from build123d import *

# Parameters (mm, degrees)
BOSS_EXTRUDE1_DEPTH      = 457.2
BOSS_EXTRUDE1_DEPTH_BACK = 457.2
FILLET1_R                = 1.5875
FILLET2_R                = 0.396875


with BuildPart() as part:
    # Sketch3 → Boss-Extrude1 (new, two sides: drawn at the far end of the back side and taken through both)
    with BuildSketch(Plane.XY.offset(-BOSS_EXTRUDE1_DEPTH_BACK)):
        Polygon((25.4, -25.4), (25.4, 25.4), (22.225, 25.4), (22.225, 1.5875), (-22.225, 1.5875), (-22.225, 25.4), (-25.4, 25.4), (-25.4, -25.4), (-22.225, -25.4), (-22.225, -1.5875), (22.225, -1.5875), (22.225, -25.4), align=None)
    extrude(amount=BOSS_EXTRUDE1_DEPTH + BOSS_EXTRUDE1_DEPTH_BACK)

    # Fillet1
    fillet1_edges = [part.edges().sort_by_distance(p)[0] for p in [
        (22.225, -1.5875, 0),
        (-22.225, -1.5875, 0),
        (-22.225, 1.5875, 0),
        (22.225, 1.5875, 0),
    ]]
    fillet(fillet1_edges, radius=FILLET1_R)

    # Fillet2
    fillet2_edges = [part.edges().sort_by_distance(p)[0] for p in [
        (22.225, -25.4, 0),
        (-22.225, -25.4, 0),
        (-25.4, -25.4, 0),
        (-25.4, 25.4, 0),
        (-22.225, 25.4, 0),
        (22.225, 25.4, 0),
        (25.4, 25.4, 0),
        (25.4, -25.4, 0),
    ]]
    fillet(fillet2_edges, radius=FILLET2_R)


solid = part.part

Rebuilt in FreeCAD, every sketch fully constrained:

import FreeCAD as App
import Part
import Sketcher
from FreeCAD import Vector
Q = App.Units.Quantity


def edges_at(feature, points):
    """Names of the edges that pass closest to the given points."""
    edges = feature.Shape.Edges
    near = lambda p: min(range(len(edges)), key=lambda i: edges[i].distToShape(Part.Vertex(*p))[0])
    return sorted({f"Edge{near(p) + 1}" for p in points})

doc = App.newDocument("Part")
body = doc.addObject("PartDesign::Body", "Body")

# Sketch on XY plane
sketch1 = doc.addObject("Sketcher::SketchObject", "Sketch")
body.addObject(sketch1)
sketch1.AttachmentSupport = (doc.XY_Plane, [""])
sketch1.MapMode = "FlatFace"
sketch1.addGeometry([
    Part.LineSegment(Vector(25.4, -25.4, 0), Vector(25.4, 25.4, 0)),  # 0
    Part.LineSegment(Vector(25.4, 25.4, 0), Vector(22.225, 25.4, 0)),  # 1
    Part.LineSegment(Vector(22.225, 25.4, 0), Vector(22.225, 1.5875, 0)),  # 2
    Part.LineSegment(Vector(22.225, 1.5875, 0), Vector(-22.225, 1.5875, 0)),  # 3
    Part.LineSegment(Vector(-22.225, 1.5875, 0), Vector(-22.225, 25.4, 0)),  # 4
    Part.LineSegment(Vector(-22.225, 25.4, 0), Vector(-25.4, 25.4, 0)),  # 5
    Part.LineSegment(Vector(-25.4, 25.4, 0), Vector(-25.4, -25.4, 0)),  # 6
    Part.LineSegment(Vector(-25.4, -25.4, 0), Vector(-22.225, -25.4, 0)),  # 7
    Part.LineSegment(Vector(-22.225, -25.4, 0), Vector(-22.225, -1.5875, 0)),  # 8
    Part.LineSegment(Vector(-22.225, -1.5875, 0), Vector(22.225, -1.5875, 0)),  # 9
    Part.LineSegment(Vector(22.225, -1.5875, 0), Vector(22.225, -25.4, 0)),  # 10
    Part.LineSegment(Vector(22.225, -25.4, 0), Vector(25.4, -25.4, 0)),  # 11
], False)
sketch1.addConstraint([
    Sketcher.Constraint("Coincident", 0, 2, 1, 1),
    Sketcher.Constraint("Coincident", 1, 2, 2, 1),
    Sketcher.Constraint("Coincident", 2, 2, 3, 1),
    Sketcher.Constraint("Coincident", 3, 2, 4, 1),
    Sketcher.Constraint("Coincident", 4, 2, 5, 1),
    Sketcher.Constraint("Coincident", 5, 2, 6, 1),
    Sketcher.Constraint("Coincident", 6, 2, 7, 1),
    Sketcher.Constraint("Coincident", 7, 2, 8, 1),
    Sketcher.Constraint("Coincident", 8, 2, 9, 1),
    Sketcher.Constraint("Coincident", 9, 2, 10, 1),
    Sketcher.Constraint("Coincident", 10, 2, 11, 1),
    Sketcher.Constraint("Coincident", 11, 2, 0, 1),
    Sketcher.Constraint("Vertical", 0),
    Sketcher.Constraint("Horizontal", 1),
    Sketcher.Constraint("Vertical", 2),
    Sketcher.Constraint("Horizontal", 3),
    Sketcher.Constraint("Vertical", 4),
    Sketcher.Constraint("Horizontal", 5),
    Sketcher.Constraint("Vertical", 6),
    Sketcher.Constraint("Horizontal", 7),
    Sketcher.Constraint("Vertical", 8),
    Sketcher.Constraint("Horizontal", 9),
    Sketcher.Constraint("Vertical", 10),
    Sketcher.Constraint("Horizontal", 11),
    Sketcher.Constraint("Symmetric", 0, 2, 6, 2, -1, 1),
    Sketcher.Constraint("Symmetric", 2, 2, 8, 2, -1, 1),
    Sketcher.Constraint("Symmetric", 4, 2, 10, 2, -1, 1),
    Sketcher.Constraint("Symmetric", 1, 2, 4, 2, -2),
    Sketcher.Constraint("DistanceY", 0, 1, 0, 2, Q("2 in")),
    Sketcher.Constraint("DistanceX", -1, 1, 0, 2, Q("1 in")),
    Sketcher.Constraint("DistanceX", 3, 2, 3, 1, Q("1.75 in")),
    Sketcher.Constraint("DistanceY", 2, 2, 2, 1, Q("0.9375 in")),
])
pad1 = doc.addObject("PartDesign::Pad", "Pad")
body.addObject(pad1)
pad1.Profile = sketch1
pad1.Type = "TwoLengths"
pad1.Length = Q("18 in")
pad1.Length2 = Q("18 in")
doc.recompute()

fillet = doc.addObject("PartDesign::Fillet", "Fillet")
body.addObject(fillet)
fillet.Base = (pad1, edges_at(pad1, [
    (22.225, -1.587, 0),
    (-22.225, -1.587, 0),
    (-22.225, 1.587, 0),
    (22.225, 1.587, 0),
]))
fillet.Radius = Q("0.0625 in")
doc.recompute()

fillet2 = doc.addObject("PartDesign::Fillet", "Fillet001")
body.addObject(fillet2)
fillet2.Base = (fillet, edges_at(fillet, [
    (22.225, -25.4, 0),
    (-22.225, -25.4, 0),
    (-25.4, -25.4, 0),
    (-25.4, 25.4, 0),
    (-22.225, 25.4, 0),
    (22.225, 25.4, 0),
    (25.4, 25.4, 0),
    (25.4, -25.4, 0),
]))
fillet2.Radius = Q("0.015625 in")

doc.recompute()
